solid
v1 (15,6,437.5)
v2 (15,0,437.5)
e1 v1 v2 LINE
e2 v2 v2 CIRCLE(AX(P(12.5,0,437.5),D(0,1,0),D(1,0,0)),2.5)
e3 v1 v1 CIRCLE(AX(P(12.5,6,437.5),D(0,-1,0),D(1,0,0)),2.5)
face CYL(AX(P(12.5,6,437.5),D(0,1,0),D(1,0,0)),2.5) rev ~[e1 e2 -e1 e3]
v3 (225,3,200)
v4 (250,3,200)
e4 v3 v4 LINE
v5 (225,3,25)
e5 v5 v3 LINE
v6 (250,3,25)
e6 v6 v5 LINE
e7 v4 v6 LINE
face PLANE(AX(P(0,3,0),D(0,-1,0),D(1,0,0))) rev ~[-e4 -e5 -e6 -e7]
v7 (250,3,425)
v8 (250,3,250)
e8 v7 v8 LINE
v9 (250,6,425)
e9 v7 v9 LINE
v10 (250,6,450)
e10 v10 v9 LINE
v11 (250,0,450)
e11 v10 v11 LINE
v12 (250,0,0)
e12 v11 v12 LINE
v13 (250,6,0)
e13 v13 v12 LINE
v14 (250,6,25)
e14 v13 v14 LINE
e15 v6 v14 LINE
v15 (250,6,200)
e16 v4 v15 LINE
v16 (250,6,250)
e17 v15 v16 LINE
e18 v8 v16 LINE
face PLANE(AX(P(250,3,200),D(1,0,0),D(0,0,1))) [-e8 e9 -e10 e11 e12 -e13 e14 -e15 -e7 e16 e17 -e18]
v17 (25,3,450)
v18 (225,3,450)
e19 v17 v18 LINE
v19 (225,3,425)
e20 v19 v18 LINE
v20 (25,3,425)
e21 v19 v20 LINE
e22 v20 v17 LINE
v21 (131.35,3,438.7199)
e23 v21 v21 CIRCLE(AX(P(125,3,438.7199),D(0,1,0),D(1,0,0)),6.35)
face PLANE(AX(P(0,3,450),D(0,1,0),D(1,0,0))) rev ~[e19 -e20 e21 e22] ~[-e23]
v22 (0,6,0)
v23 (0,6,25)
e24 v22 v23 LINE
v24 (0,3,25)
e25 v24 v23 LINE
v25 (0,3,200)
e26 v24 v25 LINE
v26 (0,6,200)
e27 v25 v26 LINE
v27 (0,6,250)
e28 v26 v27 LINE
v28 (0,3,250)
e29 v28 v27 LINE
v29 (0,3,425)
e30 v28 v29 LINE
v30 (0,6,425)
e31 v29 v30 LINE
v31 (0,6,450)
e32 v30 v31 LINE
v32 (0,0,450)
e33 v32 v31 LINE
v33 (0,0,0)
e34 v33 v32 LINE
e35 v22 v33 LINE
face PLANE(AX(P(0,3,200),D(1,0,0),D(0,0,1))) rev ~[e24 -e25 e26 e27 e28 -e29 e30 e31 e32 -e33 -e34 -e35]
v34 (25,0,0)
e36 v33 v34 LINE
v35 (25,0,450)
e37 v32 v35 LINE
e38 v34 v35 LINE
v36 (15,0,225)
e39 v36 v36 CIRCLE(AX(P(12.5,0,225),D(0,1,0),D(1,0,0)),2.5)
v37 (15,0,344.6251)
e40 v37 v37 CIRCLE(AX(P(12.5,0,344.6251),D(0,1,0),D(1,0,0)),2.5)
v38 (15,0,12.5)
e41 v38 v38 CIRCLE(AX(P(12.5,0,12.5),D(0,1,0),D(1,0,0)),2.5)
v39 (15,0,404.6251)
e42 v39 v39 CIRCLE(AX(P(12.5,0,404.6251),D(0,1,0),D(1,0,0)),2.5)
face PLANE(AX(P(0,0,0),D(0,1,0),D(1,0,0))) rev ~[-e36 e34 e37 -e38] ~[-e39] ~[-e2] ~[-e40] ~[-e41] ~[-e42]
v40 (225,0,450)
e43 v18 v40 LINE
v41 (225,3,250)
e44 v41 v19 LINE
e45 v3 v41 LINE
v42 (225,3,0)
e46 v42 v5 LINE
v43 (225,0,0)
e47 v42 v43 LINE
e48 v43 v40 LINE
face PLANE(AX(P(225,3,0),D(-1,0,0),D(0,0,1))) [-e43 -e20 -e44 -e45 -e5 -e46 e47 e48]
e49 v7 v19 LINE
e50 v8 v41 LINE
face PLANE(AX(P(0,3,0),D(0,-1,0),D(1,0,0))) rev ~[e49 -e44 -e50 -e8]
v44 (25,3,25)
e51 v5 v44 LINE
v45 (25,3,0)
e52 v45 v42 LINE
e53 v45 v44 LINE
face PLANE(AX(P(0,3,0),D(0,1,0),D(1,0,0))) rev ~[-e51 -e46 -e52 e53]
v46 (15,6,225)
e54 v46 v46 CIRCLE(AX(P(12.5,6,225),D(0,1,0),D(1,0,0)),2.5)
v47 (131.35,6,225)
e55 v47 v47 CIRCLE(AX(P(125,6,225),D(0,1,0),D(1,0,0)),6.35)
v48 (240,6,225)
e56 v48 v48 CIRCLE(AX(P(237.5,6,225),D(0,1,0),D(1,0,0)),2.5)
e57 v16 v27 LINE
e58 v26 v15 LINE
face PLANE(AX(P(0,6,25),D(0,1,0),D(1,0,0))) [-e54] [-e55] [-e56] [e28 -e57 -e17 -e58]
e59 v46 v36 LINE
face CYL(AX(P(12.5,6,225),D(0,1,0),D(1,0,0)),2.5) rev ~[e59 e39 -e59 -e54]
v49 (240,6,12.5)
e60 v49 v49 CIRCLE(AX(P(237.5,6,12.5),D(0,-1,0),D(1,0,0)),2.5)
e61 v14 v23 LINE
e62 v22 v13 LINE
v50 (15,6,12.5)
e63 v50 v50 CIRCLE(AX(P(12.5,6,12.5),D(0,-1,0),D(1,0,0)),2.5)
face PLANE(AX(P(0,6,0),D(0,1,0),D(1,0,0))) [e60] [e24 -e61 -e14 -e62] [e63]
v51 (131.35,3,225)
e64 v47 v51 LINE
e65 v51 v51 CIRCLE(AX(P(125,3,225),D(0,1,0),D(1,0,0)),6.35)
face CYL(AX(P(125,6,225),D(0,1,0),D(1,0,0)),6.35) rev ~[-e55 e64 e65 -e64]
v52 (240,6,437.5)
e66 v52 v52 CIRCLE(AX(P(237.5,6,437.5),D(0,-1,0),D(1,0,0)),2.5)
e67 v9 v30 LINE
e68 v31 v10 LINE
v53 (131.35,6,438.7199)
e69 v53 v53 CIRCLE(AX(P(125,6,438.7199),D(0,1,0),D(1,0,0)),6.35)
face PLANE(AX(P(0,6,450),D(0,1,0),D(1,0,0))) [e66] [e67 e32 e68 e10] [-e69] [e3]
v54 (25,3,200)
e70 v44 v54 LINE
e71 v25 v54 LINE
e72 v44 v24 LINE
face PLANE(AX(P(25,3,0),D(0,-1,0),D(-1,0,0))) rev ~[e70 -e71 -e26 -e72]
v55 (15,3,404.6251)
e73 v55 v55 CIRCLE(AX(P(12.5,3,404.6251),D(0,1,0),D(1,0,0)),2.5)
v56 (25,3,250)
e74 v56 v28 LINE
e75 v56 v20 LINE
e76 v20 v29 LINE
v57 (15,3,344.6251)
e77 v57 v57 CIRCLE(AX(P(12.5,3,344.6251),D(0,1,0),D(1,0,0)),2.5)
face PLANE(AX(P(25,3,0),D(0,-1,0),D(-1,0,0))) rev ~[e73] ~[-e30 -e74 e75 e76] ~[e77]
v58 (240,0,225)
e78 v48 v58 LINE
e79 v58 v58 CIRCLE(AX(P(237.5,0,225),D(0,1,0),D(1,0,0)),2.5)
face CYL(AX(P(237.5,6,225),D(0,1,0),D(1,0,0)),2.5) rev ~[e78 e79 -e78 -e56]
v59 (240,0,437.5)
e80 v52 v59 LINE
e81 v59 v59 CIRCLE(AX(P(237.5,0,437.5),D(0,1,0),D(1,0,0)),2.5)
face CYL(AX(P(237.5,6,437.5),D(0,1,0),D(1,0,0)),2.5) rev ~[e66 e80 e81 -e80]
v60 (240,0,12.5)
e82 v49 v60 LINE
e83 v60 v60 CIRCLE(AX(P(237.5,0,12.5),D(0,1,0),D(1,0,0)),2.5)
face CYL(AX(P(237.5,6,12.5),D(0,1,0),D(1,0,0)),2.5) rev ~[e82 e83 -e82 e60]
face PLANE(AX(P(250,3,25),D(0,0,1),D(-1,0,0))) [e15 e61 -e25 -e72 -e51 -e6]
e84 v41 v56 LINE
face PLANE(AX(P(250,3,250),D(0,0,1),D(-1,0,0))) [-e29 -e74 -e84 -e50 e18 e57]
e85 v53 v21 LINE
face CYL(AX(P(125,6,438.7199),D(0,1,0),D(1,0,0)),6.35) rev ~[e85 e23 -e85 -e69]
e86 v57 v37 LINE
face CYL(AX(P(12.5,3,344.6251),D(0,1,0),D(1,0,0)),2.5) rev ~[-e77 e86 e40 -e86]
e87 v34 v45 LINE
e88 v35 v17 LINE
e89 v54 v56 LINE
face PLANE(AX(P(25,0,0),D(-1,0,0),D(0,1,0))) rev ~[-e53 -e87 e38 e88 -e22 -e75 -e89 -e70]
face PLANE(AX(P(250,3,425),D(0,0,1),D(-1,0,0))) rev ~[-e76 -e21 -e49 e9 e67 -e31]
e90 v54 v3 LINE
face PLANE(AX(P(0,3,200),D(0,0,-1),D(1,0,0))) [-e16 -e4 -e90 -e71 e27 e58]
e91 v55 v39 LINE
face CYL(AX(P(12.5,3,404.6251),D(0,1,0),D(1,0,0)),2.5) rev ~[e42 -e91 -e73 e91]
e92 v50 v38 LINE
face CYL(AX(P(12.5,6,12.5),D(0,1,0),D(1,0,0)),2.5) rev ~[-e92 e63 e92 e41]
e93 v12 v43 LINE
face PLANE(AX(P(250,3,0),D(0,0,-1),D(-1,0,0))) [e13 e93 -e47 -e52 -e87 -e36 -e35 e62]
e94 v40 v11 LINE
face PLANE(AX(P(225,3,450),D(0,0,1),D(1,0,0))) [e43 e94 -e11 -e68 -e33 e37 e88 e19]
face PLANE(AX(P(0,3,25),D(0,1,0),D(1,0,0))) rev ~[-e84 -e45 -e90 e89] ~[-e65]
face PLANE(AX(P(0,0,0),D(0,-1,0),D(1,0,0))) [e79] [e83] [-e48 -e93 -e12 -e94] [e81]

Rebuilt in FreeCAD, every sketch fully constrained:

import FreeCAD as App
import Part
import Sketcher

V = App.Vector

doc = App.newDocument("Part")
body = doc.addObject("PartDesign::Body", "Body")

sketch1 = body.newObject("Sketcher::SketchObject", "Sketch")
sketch1.AttachmentSupport = (doc.getObject("XY_Plane"), [""])
sketch1.MapMode = "FlatFace"
sketch1.addGeometry([
    Part.LineSegment(V(0, 3, 0), V(0, 0, 0)),
    Part.LineSegment(V(0, 0, 0), V(25, 0, 0)),
    Part.LineSegment(V(25, 0, 0), V(25, 3, 0)),
    Part.LineSegment(V(25, 3, 0), V(0, 3, 0)),
], False)
sketch1.addConstraint([
    Sketcher.Constraint("Coincident", 0, 2, 1, 1),
    Sketcher.Constraint("Coincident", 1, 2, 2, 1),
    Sketcher.Constraint("Coincident", 2, 2, 3, 1),
    Sketcher.Constraint("Coincident", 3, 2, 0, 1),
    Sketcher.Constraint("Vertical", 0),
    Sketcher.Constraint("Horizontal", 1),
    Sketcher.Constraint("Vertical", 2),
    Sketcher.Constraint("Horizontal", 3),
    Sketcher.Constraint("Coincident", 0, 2, -1, 1),
    Sketcher.Constraint("DistanceX", 1, 1, 1, 2, 25.0),
    Sketcher.Constraint("DistanceY", 0, 2, 0, 1, 3.0),
])
pad1 = body.newObject("PartDesign::Pad", "Pad")
pad1.Profile = sketch1
pad1.Length = 450

sketch2 = body.newObject("Sketcher::SketchObject", "Sketch001")
sketch2.AttachmentSupport = (doc.getObject("XZ_Plane"), [""])
sketch2.MapMode = "FlatFace"
sketch2.AttachmentOffset = App.Placement(V(0, 0, -3), App.Rotation())
sketch2.addGeometry([
    Part.LineSegment(V(250, 0, 0), V(0, 0, 0)),
    Part.LineSegment(V(0, 0, 0), V(0, 25, 0)),
    Part.LineSegment(V(0, 25, 0), V(250, 25, 0)),
    Part.LineSegment(V(250, 25, 0), V(250, 0, 0)),
], False)
sketch2.addConstraint([
    Sketcher.Constraint("Coincident", 0, 2, 1, 1),
    Sketcher.Constraint("Coincident", 1, 2, 2, 1),
    Sketcher.Constraint("Coincident", 2, 2, 3, 1),
    Sketcher.Constraint("Coincident", 3, 2, 0, 1),
    Sketcher.Constraint("Horizontal", 0),
    Sketcher.Constraint("Vertical", 1),
    Sketcher.Constraint("Horizontal", 2),
    Sketcher.Constraint("Vertical", 3),
    Sketcher.Constraint("Coincident", 0, 2, -1, 1),
    Sketcher.Constraint("DistanceX", 0, 2, 0, 1, 250.0),
    Sketcher.Constraint("DistanceY", 1, 1, 1, 2, 25.0),
])
pad2 = body.newObject("PartDesign::Pad", "Pad001")
pad2.Profile = sketch2
pad2.Length = 3
pad2.Reversed = True

sketch3 = body.newObject("Sketcher::SketchObject", "Sketch002")
sketch3.AttachmentSupport = (doc.getObject("XZ_Plane"), [""])
sketch3.MapMode = "FlatFace"
sketch3.AttachmentOffset = App.Placement(V(0, 0, -3), App.Rotation())
sketch3.addGeometry([
    Part.LineSegment(V(250, 425, 0), V(0, 425, 0)),
    Part.LineSegment(V(0, 425, 0), V(0, 450, 0)),
    Part.LineSegment(V(0, 450, 0), V(250, 450, 0)),
    Part.LineSegment(V(250, 450, 0), V(250, 425, 0)),
], False)
sketch3.addConstraint([
    Sketcher.Constraint("Coincident", 0, 2, 1, 1),
    Sketcher.Constraint("Coincident", 1, 2, 2, 1),
    Sketcher.Constraint("Coincident", 2, 2, 3, 1),
    Sketcher.Constraint("Coincident", 3, 2, 0, 1),
    Sketcher.Constraint("Horizontal", 0),
    Sketcher.Constraint("Vertical", 1),
    Sketcher.Constraint("Horizontal", 2),
    Sketcher.Constraint("Vertical", 3),
    Sketcher.Constraint("PointOnObject", 0, 2, -2),
    Sketcher.Constraint("DistanceX", 0, 2, 0, 1, 250.0),
    Sketcher.Constraint("DistanceY", 1, 1, 1, 2, 25.0),
    Sketcher.Constraint("DistanceY", -1, 1, 0, 2, 425.0),
])
pad3 = body.newObject("PartDesign::Pad", "Pad002")
pad3.Profile = sketch3
pad3.Length = 3
pad3.Reversed = True

sketch4 = body.newObject("Sketcher::SketchObject", "Sketch003")
sketch4.AttachmentSupport = (doc.getObject("XZ_Plane"), [""])
sketch4.MapMode = "FlatFace"
sketch4.AttachmentOffset = App.Placement(V(0, 0, -3), App.Rotation())
sketch4.addGeometry([
    Part.LineSegment(V(225, 0, 0), V(250, 0, 0)),
    Part.LineSegment(V(250, 0, 0), V(250, 450, 0)),
    Part.LineSegment(V(250, 450, 0), V(225, 450, 0)),
    Part.LineSegment(V(225, 450, 0), V(225, 0, 0)),
], False)
sketch4.addConstraint([
    Sketcher.Constraint("Coincident", 0, 2, 1, 1),
    Sketcher.Constraint("Coincident", 1, 2, 2, 1),
    Sketcher.Constraint("Coincident", 2, 2, 3, 1),
    Sketcher.Constraint("Coincident", 3, 2, 0, 1),
    Sketcher.Constraint("Horizontal", 0),
    Sketcher.Constraint("Vertical", 1),
    Sketcher.Constraint("Horizontal", 2),
    Sketcher.Constraint("Vertical", 3),
    Sketcher.Constraint("PointOnObject", 0, 2, -1),
    Sketcher.Constraint("DistanceX", 0, 1, 0, 2, 25.0),
    Sketcher.Constraint("DistanceY", 1, 1, 1, 2, 450.0),
    Sketcher.Constraint("DistanceX", -1, 1, 0, 2, 250.0),
])
pad4 = body.newObject("PartDesign::Pad", "Pad003")
pad4.Profile = sketch4
pad4.Length = 3

sketch5 = body.newObject("Sketcher::SketchObject", "Sketch004")
sketch5.AttachmentSupport = (doc.getObject("XZ_Plane"), [""])
sketch5.MapMode = "FlatFace"
sketch5.AttachmentOffset = App.Placement(V(0, 0, -3), App.Rotation())
sketch5.addGeometry([
    Part.LineSegment(V(250, 200, 0), V(0, 200, 0)),
    Part.LineSegment(V(0, 200, 0), V(0, 250, 0)),
    Part.LineSegment(V(0, 250, 0), V(250, 250, 0)),
    Part.LineSegment(V(250, 250, 0), V(250, 200, 0)),
], False)
sketch5.addConstraint([
    Sketcher.Constraint("Coincident", 0, 2, 1, 1),
    Sketcher.Constraint("Coincident", 1, 2, 2, 1),
    Sketcher.Constraint("Coincident", 2, 2, 3, 1),
    Sketcher.Constraint("Coincident", 3, 2, 0, 1),
    Sketcher.Constraint("Horizontal", 0),
    Sketcher.Constraint("Vertical", 1),
    Sketcher.Constraint("Horizontal", 2),
    Sketcher.Constraint("Vertical", 3),
    Sketcher.Constraint("PointOnObject", 0, 2, -2),
    Sketcher.Constraint("DistanceX", 0, 2, 0, 1, 250.0),
    Sketcher.Constraint("DistanceY", 1, 1, 1, 2, 50.0),
    Sketcher.Constraint("DistanceY", -1, 1, 0, 2, 200.0),
])
pad5 = body.newObject("PartDesign::Pad", "Pad004")
pad5.Profile = sketch5
pad5.Length = 3
pad5.Reversed = True

sketch6 = body.newObject("Sketcher::SketchObject", "Sketch005")
sketch6.AttachmentSupport = (doc.getObject("XZ_Plane"), [""])
sketch6.MapMode = "FlatFace"
sketch6.AttachmentOffset = App.Placement(V(0, 0, -6), App.Rotation())
sketch6.addGeometry([
    Part.Circle(V(12.5, 12.5, 0), V(0, 0, 1), 2.5),
    Part.Circle(V(237.5, 12.5, 0), V(0, 0, 1), 2.5),
    Part.Circle(V(12.5, 437.5, 0), V(0, 0, 1), 2.5),
    Part.Circle(V(237.5, 437.5, 0), V(0, 0, 1), 2.5),
], False)
sketch6.addConstraint([
    Sketcher.Constraint("Equal", 0, 1),
    Sketcher.Constraint("Equal", 1, 2),
    Sketcher.Constraint("Equal", 2, 3),
    Sketcher.Constraint("Horizontal", 0, 3, 1, 3),
    Sketcher.Constraint("Horizontal", 2, 3, 3, 3),
    Sketcher.Constraint("Vertical", 0, 3, 2, 3),
    Sketcher.Constraint("Vertical", 1, 3, 3, 3),
    Sketcher.Constraint("Diameter", 0, 5.0),
    Sketcher.Constraint("DistanceX", 0, 3, 1, 3, 225.0),
    Sketcher.Constraint("DistanceY", 0, 3, 2, 3, 425.0),
    Sketcher.Constraint("DistanceX", -1, 1, 0, 3, 12.5),
    Sketcher.Constraint("DistanceY", -1, 1, 0, 3, 12.5),
])
pocket1 = body.newObject("PartDesign::Pocket", "Pocket")
pocket1.Profile = sketch6
pocket1.Length = 100
pocket1.Reversed = True

sketch7 = body.newObject("Sketcher::SketchObject", "Sketch006")
sketch7.AttachmentSupport = (doc.getObject("XZ_Plane"), [""])
sketch7.MapMode = "FlatFace"
sketch7.AttachmentOffset = App.Placement(V(0, 0, -6), App.Rotation())
sketch7.addGeometry([
    Part.Circle(V(12.5, 225, 0), V(0, 0, 1), 2.5),
    Part.Circle(V(237.5, 225, 0), V(0, 0, 1), 2.5),
], False)
sketch7.addConstraint([
    Sketcher.Constraint("Equal", 0, 1),
    Sketcher.Constraint("Horizontal", 0, 3, 1, 3),
    Sketcher.Constraint("Diameter", 0, 5.0),
    Sketcher.Constraint("DistanceX", -1, 1, 0, 3, 12.5),
    Sketcher.Constraint("DistanceY", -1, 1, 0, 3, 225.0),
    Sketcher.Constraint("DistanceX", 0, 3, 1, 3, 225.0),
])
pocket2 = body.newObject("PartDesign::Pocket", "Pocket001")
pocket2.Profile = sketch7
pocket2.Length = 100
pocket2.Reversed = True

sketch8 = body.newObject("Sketcher::SketchObject", "Sketch007")
sketch8.AttachmentSupport = (doc.getObject("XZ_Plane"), [""])
sketch8.MapMode = "FlatFace"
sketch8.AttachmentOffset = App.Placement(V(0, 0, -6), App.Rotation())
sketch8.addGeometry(Part.Circle(V(125, 225, 0), V(0, 0, 1), 6), False)
sketch8.addConstraint([
    Sketcher.Constraint("Diameter", 0, 12.7),
    Sketcher.Constraint("DistanceX", -1, 1, 0, 3, 125.0),
    Sketcher.Constraint("DistanceY", -1, 1, 0, 3, 225.0),
])
pocket3 = body.newObject("PartDesign::Pocket", "Pocket002")
pocket3.Profile = sketch8
pocket3.Length = 10
pocket3.Reversed = True

sketch9 = body.newObject("Sketcher::SketchObject", "Sketch008")
sketch9.AttachmentSupport = (doc.getObject("XZ_Plane"), [""])
sketch9.MapMode = "FlatFace"
sketch9.AttachmentOffset = App.Placement(V(0, 0, -6), App.Rotation())
sketch9.addGeometry(Part.Circle(V(125, 439, 0), V(0, 0, 1), 6), False)
sketch9.addConstraint([
    Sketcher.Constraint("Diameter", 0, 12.7),
    Sketcher.Constraint("DistanceX", -1, 1, 0, 3, 125.0),
    Sketcher.Constraint("DistanceY", -1, 1, 0, 3, 438.72),
])
pocket4 = body.newObject("PartDesign::Pocket", "Pocket003")
pocket4.Profile = sketch9
pocket4.Type = "ThroughAll"
pocket4.Reversed = True

sketch10 = body.newObject("Sketcher::SketchObject", "Sketch009")
sketch10.AttachmentSupport = (doc.getObject("XZ_Plane"), [""])
sketch10.MapMode = "FlatFace"
sketch10.AttachmentOffset = App.Placement(V(0, 0, -3), App.Rotation())
sketch10.addGeometry([
    Part.Circle(V(12.5, 404.6, 0), V(0, 0, 1), 2.5),
    Part.Circle(V(12.5, 344.6, 0), V(0, 0, 1), 2.5),
], False)
sketch10.addConstraint([
    Sketcher.Constraint("Equal", 0, 1),
    Sketcher.Constraint("Vertical", 0, 3, 1, 3),
    Sketcher.Constraint("Diameter", 0, 5.0),
    Sketcher.Constraint("DistanceX", -1, 1, 0, 3, 12.5),
    Sketcher.Constraint("DistanceY", 1, 3, 0, 3, 60.0),
    Sketcher.Constraint("DistanceY", -1, 1, 0, 3, 404.625),
])
pocket5 = body.newObject("PartDesign::Pocket", "Pocket004")
pocket5.Profile = sketch10
pocket5.Length = 10
pocket5.Reversed = True

doc.recompute()
